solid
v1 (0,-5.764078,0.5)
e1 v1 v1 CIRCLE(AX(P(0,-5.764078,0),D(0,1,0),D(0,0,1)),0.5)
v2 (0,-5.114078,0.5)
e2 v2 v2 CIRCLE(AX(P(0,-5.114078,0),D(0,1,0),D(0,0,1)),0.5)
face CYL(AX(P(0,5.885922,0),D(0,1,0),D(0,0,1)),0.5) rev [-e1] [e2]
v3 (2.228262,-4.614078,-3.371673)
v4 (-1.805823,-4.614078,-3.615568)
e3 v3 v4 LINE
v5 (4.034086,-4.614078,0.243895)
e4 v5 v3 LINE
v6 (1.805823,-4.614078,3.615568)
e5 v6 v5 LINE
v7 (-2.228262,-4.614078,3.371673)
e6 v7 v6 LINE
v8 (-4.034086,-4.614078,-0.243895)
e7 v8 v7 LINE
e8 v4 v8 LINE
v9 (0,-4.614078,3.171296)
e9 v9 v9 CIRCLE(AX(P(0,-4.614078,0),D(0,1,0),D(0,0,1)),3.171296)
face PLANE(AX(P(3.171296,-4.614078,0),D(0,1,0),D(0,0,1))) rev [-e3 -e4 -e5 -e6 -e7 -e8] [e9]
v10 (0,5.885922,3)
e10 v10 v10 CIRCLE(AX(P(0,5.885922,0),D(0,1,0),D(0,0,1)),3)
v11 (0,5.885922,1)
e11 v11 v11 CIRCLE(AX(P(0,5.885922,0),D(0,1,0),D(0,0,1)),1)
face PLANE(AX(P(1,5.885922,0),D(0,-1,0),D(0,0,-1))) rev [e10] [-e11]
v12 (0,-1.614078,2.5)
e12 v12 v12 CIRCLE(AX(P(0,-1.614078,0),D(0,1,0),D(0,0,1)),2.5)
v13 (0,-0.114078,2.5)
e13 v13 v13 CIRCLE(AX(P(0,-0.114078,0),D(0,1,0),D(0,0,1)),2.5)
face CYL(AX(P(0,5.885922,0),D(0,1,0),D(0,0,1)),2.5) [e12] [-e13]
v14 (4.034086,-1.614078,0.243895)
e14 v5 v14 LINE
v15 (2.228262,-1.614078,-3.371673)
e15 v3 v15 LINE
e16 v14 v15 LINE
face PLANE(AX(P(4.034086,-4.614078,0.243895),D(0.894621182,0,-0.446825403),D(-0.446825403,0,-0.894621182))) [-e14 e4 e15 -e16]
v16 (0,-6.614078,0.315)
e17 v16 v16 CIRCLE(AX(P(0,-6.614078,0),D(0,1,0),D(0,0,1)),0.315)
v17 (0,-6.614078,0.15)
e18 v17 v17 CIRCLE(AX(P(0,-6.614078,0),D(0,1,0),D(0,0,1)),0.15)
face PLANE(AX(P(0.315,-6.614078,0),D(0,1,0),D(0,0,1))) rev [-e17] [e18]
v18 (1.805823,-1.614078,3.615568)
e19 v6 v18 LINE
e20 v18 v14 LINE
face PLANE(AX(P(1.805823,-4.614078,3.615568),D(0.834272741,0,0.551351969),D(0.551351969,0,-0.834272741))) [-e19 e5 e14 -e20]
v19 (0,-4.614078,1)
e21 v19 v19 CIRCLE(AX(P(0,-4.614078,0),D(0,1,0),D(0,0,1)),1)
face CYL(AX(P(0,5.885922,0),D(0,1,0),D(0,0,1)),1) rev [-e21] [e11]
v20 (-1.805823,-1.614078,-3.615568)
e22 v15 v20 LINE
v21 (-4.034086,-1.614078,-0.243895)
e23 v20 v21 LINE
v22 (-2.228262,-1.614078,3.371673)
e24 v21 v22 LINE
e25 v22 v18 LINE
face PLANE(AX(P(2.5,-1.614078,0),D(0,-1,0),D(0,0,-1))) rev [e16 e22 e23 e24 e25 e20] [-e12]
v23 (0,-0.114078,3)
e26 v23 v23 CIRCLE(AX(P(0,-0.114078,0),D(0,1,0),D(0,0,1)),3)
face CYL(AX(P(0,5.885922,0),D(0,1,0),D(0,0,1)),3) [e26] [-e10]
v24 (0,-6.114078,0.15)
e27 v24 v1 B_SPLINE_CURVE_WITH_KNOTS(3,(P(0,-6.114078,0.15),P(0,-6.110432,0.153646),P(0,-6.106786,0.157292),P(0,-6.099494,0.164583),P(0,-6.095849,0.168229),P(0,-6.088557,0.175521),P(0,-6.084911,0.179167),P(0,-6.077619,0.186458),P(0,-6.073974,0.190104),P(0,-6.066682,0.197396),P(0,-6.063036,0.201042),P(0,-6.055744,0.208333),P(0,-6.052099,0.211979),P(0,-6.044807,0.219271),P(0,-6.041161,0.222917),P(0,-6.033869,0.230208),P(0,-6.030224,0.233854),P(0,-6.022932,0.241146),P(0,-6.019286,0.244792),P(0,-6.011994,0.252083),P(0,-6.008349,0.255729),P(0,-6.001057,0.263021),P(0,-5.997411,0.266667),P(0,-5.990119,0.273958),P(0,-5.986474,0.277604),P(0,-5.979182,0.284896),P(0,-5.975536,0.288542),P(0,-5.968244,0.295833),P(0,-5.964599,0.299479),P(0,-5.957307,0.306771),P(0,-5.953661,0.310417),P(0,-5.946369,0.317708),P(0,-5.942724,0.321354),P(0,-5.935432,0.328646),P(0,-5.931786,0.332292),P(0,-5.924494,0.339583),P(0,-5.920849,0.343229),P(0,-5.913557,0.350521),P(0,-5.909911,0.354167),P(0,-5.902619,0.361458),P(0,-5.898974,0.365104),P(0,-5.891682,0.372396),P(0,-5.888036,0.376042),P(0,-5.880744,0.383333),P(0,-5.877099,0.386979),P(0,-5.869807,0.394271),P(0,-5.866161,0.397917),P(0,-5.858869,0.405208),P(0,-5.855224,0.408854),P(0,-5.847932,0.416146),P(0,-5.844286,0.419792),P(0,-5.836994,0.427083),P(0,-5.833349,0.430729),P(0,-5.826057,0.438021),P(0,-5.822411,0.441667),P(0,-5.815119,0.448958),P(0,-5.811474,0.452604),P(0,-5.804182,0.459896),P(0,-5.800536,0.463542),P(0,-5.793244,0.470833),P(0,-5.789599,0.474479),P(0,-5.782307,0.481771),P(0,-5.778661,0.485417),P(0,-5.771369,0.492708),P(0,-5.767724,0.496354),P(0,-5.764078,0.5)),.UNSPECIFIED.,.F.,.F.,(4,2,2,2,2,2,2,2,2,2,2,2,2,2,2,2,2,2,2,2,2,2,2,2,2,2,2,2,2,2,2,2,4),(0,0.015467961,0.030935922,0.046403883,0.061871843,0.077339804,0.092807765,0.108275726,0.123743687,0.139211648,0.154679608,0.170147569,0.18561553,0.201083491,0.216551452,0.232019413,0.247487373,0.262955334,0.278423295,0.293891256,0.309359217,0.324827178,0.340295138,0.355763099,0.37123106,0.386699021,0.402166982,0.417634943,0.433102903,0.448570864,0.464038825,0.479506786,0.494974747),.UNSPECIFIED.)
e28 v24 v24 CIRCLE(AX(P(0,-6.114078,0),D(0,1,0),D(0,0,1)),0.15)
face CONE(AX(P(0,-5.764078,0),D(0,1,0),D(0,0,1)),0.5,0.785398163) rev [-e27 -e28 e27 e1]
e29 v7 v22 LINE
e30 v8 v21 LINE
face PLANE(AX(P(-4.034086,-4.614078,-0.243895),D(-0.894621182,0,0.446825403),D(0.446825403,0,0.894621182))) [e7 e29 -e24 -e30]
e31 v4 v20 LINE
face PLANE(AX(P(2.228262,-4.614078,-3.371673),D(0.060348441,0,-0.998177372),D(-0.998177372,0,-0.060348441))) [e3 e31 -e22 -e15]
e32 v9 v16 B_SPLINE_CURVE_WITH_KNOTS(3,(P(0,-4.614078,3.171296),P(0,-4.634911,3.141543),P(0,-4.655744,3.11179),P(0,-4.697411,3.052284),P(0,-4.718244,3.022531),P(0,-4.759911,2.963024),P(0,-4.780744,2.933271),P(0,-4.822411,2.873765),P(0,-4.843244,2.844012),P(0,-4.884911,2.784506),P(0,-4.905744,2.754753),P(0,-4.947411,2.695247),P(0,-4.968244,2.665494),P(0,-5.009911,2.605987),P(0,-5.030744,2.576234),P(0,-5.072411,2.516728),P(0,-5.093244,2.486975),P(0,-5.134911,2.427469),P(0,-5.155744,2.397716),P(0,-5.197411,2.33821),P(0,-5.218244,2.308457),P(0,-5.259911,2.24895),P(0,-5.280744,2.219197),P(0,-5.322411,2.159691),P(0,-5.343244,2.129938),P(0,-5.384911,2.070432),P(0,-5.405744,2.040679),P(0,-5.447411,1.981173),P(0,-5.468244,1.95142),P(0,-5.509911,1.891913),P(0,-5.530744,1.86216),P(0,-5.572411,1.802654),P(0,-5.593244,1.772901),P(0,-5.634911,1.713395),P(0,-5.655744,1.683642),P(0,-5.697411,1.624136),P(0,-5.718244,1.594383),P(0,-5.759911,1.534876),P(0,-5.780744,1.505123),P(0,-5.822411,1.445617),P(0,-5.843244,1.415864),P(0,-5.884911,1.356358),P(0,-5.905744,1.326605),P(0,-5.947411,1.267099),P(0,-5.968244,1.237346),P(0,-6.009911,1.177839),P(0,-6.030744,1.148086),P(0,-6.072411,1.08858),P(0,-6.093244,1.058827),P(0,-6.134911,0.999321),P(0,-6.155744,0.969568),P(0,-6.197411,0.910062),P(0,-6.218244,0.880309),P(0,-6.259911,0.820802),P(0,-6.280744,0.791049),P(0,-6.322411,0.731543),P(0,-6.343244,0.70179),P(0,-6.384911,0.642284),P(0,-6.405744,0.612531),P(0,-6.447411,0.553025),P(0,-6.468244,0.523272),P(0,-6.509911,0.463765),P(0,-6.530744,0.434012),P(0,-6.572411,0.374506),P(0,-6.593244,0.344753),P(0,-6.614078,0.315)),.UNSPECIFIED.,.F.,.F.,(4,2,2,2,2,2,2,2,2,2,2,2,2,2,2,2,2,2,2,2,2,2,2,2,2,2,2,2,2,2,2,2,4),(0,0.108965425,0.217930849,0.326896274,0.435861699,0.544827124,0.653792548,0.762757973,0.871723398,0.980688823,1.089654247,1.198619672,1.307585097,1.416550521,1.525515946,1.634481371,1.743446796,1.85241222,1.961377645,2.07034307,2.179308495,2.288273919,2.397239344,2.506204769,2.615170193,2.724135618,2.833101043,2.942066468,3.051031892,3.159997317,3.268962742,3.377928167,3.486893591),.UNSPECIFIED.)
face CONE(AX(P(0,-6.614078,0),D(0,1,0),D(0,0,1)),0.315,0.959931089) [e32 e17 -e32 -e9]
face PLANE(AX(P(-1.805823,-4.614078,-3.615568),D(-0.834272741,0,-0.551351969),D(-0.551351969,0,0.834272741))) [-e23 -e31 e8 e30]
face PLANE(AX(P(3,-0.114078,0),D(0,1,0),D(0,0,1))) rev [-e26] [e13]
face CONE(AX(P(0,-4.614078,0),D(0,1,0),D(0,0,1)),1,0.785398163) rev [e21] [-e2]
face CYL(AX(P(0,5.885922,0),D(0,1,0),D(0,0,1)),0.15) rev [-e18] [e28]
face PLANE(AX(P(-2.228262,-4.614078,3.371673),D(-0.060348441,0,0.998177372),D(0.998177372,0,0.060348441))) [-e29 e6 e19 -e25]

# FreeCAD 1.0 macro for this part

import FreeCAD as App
import Part
import Sketcher

V = App.Vector
Q = App.Units.Quantity

doc = App.newDocument("Part")
body = doc.addObject("PartDesign::Body", "Body")

sketch1 = body.newObject("Sketcher::SketchObject", "Sketch")
sketch1.AttachmentSupport = (doc.getObject("XY_Plane"), [""])
sketch1.MapMode = "FlatFace"
sketch1.addGeometry(Part.LineSegment(V(3, 5.89, 0), V(1, 5.89, 0)), False)
sketch1.addGeometry(Part.LineSegment(V(1, 5.89, 0), V(1, -4.61, 0)), False)
sketch1.addGeometry(Part.LineSegment(V(1, -4.61, 0), V(0.5, -5.11, 0)), False)
sketch1.addGeometry(Part.LineSegment(V(0.5, -5.11, 0), V(0.5, -5.76, 0)), False)
sketch1.addGeometry(Part.LineSegment(V(0.5, -5.76, 0), V(0.15, -6.11, 0)), False)
sketch1.addGeometry(Part.LineSegment(V(0.15, -6.11, 0), V(0.15, -6.61, 0)), False)
sketch1.addGeometry(Part.LineSegment(V(0.15, -6.61, 0), V(0.32, -6.61, 0)), False)
sketch1.addGeometry(Part.LineSegment(V(0.32, -6.61, 0), V(3.17, -4.61, 0)), False)
sketch1.addGeometry(Part.LineSegment(V(3.17, -4.61, 0), V(3.5, -4.61, 0)), False)
sketch1.addGeometry(Part.LineSegment(V(3.5, -4.61, 0), V(3.5, -1.61, 0)), False)
sketch1.addGeometry(Part.LineSegment(V(3.5, -1.61, 0), V(2.5, -1.61, 0)), False)
sketch1.addGeometry(Part.LineSegment(V(2.5, -1.61, 0), V(2.5, -0.11, 0)), False)
sketch1.addGeometry(Part.LineSegment(V(2.5, -0.11, 0), V(3, -0.11, 0)), False)
sketch1.addGeometry(Part.LineSegment(V(3, -0.11, 0), V(3, 5.89, 0)), False)
sketch1.addConstraint(Sketcher.Constraint("Coincident", 0, 2, 1, 1))
sketch1.addConstraint(Sketcher.Constraint("Coincident", 1, 2, 2, 1))
sketch1.addConstraint(Sketcher.Constraint("Coincident", 2, 2, 3, 1))
sketch1.addConstraint(Sketcher.Constraint("Coincident", 3, 2, 4, 1))
sketch1.addConstraint(Sketcher.Constraint("Coincident", 4, 2, 5, 1))
sketch1.addConstraint(Sketcher.Constraint("Coincident", 5, 2, 6, 1))
sketch1.addConstraint(Sketcher.Constraint("Coincident", 6, 2, 7, 1))
sketch1.addConstraint(Sketcher.Constraint("Coincident", 7, 2, 8, 1))
sketch1.addConstraint(Sketcher.Constraint("Coincident", 8, 2, 9, 1))
sketch1.addConstraint(Sketcher.Constraint("Coincident", 9, 2, 10, 1))
sketch1.addConstraint(Sketcher.Constraint("Coincident", 10, 2, 11, 1))
sketch1.addConstraint(Sketcher.Constraint("Coincident", 11, 2, 12, 1))
sketch1.addConstraint(Sketcher.Constraint("Coincident", 12, 2, 13, 1))
sketch1.addConstraint(Sketcher.Constraint("Coincident", 13, 2, 0, 1))
sketch1.addConstraint(Sketcher.Constraint("Horizontal", 0))
sketch1.addConstraint(Sketcher.Constraint("Vertical", 1))
sketch1.addConstraint(Sketcher.Constraint("Vertical", 3))
sketch1.addConstraint(Sketcher.Constraint("Vertical", 5))
sketch1.addConstraint(Sketcher.Constraint("Horizontal", 6))
sketch1.addConstraint(Sketcher.Constraint("Horizontal", 8))
sketch1.addConstraint(Sketcher.Constraint("Vertical", 9))
sketch1.addConstraint(Sketcher.Constraint("Horizontal", 10))
sketch1.addConstraint(Sketcher.Constraint("Vertical", 11))
sketch1.addConstraint(Sketcher.Constraint("Horizontal", 12))
sketch1.addConstraint(Sketcher.Constraint("Vertical", 13))
sketch1.addConstraint(Sketcher.Constraint("Parallel", 2, 4))
sketch1.addConstraint(Sketcher.Constraint("Horizontal", 1, 2, 7, 2))
sketch1.addConstraint(Sketcher.Constraint("Equal", 12, 5))
sketch1.addConstraint(Sketcher.Constraint("DistanceX", 0, 2, 0, 1, Q("2 mm")))
sketch1.addConstraint(Sketcher.Constraint("DistanceX", 10, 2, 10, 1, Q("1 mm")))
sketch1.addConstraint(Sketcher.Constraint("DistanceY", 9, 1, 9, 2, Q("3 mm")))
sketch1.addConstraint(Sketcher.Constraint("DistanceY", 13, 1, 13, 2, Q("6 mm")))
sketch1.addConstraint(Sketcher.Constraint("Angle", 2, Q("-135 deg")))
sketch1.addConstraint(Sketcher.Constraint("Angle", 7, Q("35 deg")))
sketch1.addConstraint(Sketcher.Constraint("DistanceX", 12, 1, 12, 2, Q("0.5 mm")))
sketch1.addConstraint(Sketcher.Constraint("DistanceY", 1, 2, 1, 1, Q("10.5 mm")))
sketch1.addConstraint(Sketcher.Constraint("DistanceX", -1, 1, 0, 2, Q("1 mm")))
sketch1.addConstraint(Sketcher.Constraint("DistanceY", 2, 2, 0, 2, Q("11 mm")))
sketch1.addConstraint(Sketcher.Constraint("DistanceY", 4, 2, 2, 2, Q("1 mm")))
sketch1.addConstraint(Sketcher.Constraint("DistanceY", 3, 2, 3, 1, Q("0.65 mm")))
sketch1.addConstraint(Sketcher.Constraint("DistanceX", 6, 1, 6, 2, Q("0.165 mm")))
sketch1.addConstraint(Sketcher.Constraint("DistanceY", -1, 1, 0, 2, Q("5.885922 mm")))
revolution = body.newObject("PartDesign::Revolution", "Revolution")
revolution.Profile = sketch1
revolution.ReferenceAxis = (sketch1, ["V_Axis"])
revolution.Angle = 360

sketch2 = body.newObject("Sketcher::SketchObject", "Sketch001")
sketch2.AttachmentSupport = (doc.getObject("XZ_Plane"), [""])
sketch2.MapMode = "FlatFace"
sketch2.AttachmentOffset = App.Placement(V(0, 0, 1.614078), App.Rotation())
sketch2.addGeometry(Part.LineSegment(V(-4, -0.2, 0), V(-2.2, 3.4, 0)), False)
sketch2.addGeometry(Part.LineSegment(V(-2.2, 3.4, 0), V(1.8, 3.6, 0)), False)
sketch2.addGeometry(Part.LineSegment(V(1.8, 3.6, 0), V(4, 0.2, 0)), False)
sketch2.addGeometry(Part.LineSegment(V(4, 0.2, 0), V(2.2, -3.4, 0)), False)
sketch2.addGeometry(Part.LineSegment(V(2.2, -3.4, 0), V(-1.8, -3.6, 0)), False)
sketch2.addGeometry(Part.LineSegment(V(-1.8, -3.6, 0), V(-4, -0.2, 0)), False)
sketch2.addConstraint(Sketcher.Constraint("Coincident", 0, 2, 1, 1))
sketch2.addConstraint(Sketcher.Constraint("Coincident", 1, 2, 2, 1))
sketch2.addConstraint(Sketcher.Constraint("Coincident", 2, 2, 3, 1))
sketch2.addConstraint(Sketcher.Constraint("Coincident", 3, 2, 4, 1))
sketch2.addConstraint(Sketcher.Constraint("Coincident", 4, 2, 5, 1))
sketch2.addConstraint(Sketcher.Constraint("Coincident", 5, 2, 0, 1))
sketch2.addConstraint(Sketcher.Constraint("Symmetric", 0, 2, 3, 2, -1, 1))
sketch2.addConstraint(Sketcher.Constraint("Symmetric", 1, 2, 4, 2, -1, 1))
sketch2.addConstraint(Sketcher.Constraint("Symmetric", 2, 2, 5, 2, -1, 1))
sketch2.addConstraint(Sketcher.Constraint("Equal", 0, 1))
sketch2.addConstraint(Sketcher.Constraint("Equal", 1, 2))
sketch2.addConstraint(Sketcher.Constraint("Distance", 0, Q("4.041452 mm")))
sketch2.addConstraint(Sketcher.Constraint("DistanceY", -1, 1, 1, 2, Q("3.615568 mm")))
sketch2.addConstraint(Sketcher.Constraint("DistanceX", 0, 2, 2, 2, Q("6.262348 mm")))
sketch2.addConstraint(Sketcher.Constraint("DistanceY", 3, 2, 2, 2, Q("3.615568 mm")))
pad1 = body.newObject("PartDesign::Pad", "Pad")
pad1.Profile = sketch2
pad1.Length = 3

sketch3 = body.newObject("Sketcher::SketchObject", "Sketch002")
sketch3.AttachmentSupport = (doc.getObject("XZ_Plane"), [""])
sketch3.MapMode = "FlatFace"
sketch3.AttachmentOffset = App.Placement(V(0, 0, 1.614078), App.Rotation())
sketch3.addGeometry(Part.Circle(V(0, 0, 0), V(0, 0, 1), 1), False)
sketch3.addConstraint(Sketcher.Constraint("Coincident", 0, 3, -1, 1))
sketch3.addConstraint(Sketcher.Constraint("Diameter", 0, Q("2 mm")))
pocket1 = body.newObject("PartDesign::Pocket", "Pocket")
pocket1.Profile = sketch3
pocket1.Length = 3
pocket1.Reversed = True

doc.recompute()
